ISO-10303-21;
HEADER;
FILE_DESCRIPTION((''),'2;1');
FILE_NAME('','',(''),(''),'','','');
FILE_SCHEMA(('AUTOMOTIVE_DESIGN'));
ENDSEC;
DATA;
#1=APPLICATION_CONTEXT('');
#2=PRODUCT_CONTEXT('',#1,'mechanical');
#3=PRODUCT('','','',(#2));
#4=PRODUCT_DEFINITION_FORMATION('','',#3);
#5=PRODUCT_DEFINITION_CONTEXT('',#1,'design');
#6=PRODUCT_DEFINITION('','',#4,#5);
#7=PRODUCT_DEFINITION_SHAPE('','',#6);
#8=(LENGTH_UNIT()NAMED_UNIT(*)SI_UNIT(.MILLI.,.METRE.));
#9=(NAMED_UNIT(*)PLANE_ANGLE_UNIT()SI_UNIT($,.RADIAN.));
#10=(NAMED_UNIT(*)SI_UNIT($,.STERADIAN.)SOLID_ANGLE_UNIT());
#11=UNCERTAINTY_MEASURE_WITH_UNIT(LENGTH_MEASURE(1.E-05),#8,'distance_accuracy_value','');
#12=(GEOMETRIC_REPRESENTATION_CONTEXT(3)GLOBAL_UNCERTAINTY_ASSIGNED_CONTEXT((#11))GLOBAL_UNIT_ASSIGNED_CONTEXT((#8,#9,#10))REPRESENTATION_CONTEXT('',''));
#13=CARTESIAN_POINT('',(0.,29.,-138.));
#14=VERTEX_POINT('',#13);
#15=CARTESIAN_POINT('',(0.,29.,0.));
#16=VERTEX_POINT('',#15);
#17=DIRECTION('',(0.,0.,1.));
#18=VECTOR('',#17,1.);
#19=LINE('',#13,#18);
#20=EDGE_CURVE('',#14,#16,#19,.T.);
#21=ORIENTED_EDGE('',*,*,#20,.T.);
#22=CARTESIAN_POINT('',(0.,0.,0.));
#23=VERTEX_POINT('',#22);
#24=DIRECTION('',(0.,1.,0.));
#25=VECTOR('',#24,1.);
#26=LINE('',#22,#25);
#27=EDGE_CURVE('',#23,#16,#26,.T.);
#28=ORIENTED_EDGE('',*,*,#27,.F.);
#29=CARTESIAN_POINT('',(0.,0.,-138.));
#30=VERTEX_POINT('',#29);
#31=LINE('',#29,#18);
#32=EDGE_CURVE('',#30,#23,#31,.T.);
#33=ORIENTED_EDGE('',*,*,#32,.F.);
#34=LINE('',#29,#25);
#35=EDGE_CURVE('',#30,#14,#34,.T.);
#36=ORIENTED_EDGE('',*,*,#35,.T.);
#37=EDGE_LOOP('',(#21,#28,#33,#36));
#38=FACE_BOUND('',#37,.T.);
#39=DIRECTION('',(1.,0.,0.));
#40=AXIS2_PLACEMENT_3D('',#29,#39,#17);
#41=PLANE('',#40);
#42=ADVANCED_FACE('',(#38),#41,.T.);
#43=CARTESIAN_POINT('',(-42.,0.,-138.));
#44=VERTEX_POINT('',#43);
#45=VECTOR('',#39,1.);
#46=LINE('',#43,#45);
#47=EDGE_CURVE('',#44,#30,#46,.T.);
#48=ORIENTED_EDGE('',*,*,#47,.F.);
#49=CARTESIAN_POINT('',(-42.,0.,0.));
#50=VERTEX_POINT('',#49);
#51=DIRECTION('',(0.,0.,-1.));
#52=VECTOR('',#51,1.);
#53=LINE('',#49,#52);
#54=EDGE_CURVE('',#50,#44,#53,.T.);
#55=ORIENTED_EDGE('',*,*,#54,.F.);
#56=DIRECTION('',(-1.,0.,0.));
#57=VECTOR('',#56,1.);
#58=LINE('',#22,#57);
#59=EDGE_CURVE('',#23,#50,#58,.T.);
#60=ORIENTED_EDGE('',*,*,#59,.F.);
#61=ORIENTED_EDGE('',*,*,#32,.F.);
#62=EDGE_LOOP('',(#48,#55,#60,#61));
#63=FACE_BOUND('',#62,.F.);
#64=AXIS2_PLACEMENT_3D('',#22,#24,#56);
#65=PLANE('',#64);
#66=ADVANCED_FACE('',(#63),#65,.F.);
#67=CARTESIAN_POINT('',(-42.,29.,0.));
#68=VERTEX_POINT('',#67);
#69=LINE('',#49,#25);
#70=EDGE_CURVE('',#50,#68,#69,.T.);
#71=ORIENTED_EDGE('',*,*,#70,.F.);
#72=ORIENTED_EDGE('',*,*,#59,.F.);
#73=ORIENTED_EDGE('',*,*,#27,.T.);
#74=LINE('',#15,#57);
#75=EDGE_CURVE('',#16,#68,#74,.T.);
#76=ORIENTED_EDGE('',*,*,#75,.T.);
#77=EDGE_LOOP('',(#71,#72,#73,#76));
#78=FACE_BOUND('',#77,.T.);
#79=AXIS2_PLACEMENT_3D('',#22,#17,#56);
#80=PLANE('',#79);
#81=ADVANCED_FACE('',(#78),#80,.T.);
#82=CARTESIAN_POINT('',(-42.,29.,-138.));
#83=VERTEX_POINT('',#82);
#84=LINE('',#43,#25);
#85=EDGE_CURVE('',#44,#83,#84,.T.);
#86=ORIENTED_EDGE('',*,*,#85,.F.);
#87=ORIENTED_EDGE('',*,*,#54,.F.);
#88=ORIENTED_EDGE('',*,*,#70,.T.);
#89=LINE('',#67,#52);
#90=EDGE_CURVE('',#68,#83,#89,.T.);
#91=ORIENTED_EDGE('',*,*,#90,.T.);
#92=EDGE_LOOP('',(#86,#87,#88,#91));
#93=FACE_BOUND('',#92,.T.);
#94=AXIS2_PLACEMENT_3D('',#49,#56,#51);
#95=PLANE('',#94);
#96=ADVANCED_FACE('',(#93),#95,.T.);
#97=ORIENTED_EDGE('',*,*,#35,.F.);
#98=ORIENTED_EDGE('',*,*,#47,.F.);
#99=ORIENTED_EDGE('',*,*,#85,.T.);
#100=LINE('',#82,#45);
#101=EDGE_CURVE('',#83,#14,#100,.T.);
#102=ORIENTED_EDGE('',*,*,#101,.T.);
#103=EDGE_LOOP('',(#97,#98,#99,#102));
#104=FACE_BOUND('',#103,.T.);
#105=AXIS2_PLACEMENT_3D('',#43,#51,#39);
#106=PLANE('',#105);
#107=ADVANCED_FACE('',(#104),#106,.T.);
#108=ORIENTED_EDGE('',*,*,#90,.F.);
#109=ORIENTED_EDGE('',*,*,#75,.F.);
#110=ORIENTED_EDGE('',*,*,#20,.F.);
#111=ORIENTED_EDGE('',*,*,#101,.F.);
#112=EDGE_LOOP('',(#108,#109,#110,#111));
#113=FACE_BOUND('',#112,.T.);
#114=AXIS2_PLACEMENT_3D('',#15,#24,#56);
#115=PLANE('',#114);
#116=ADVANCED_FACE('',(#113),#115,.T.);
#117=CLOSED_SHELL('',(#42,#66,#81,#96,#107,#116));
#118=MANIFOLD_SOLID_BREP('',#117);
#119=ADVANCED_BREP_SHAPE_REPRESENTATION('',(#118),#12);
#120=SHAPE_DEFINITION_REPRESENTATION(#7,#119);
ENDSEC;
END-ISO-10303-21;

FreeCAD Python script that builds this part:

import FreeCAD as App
import Part
import Sketcher
from FreeCAD import Vector
Q = App.Units.Quantity

doc = App.newDocument("Part")
params = doc.addObject("Spreadsheet::Sheet", "Params")
for row, (alias, value) in enumerate([
    ("sketch1_width", "42 mm"),
    ("sketch1_height", "138 mm"),
    ("pad1_length", "29 mm"),
], start=1):
    params.set(f"A{row}", alias)
    params.set(f"B{row}", "=" + value)
    params.setAlias(f"B{row}", alias)

body = doc.addObject("PartDesign::Body", "Body")

sketch1 = doc.addObject("Sketcher::SketchObject", "Sketch")
body.addObject(sketch1)
sketch1.AttachmentSupport = (doc.XZ_Plane, [""])
sketch1.MapMode = "FlatFace"
sketch1.addGeometry([
    Part.LineSegment(Vector(-42, 0, 0), Vector(0, 0, 0)),
    Part.LineSegment(Vector(0, 0, 0), Vector(0, -138, 0)),
    Part.LineSegment(Vector(0, -138, 0), Vector(-42, -138, 0)),
    Part.LineSegment(Vector(-42, -138, 0), Vector(-42, 0, 0)),
], False)
sketch1.addConstraint([
    Sketcher.Constraint("Coincident", 0, 2, 1, 1),
    Sketcher.Constraint("Coincident", 1, 2, 2, 1),
    Sketcher.Constraint("Coincident", 2, 2, 3, 1),
    Sketcher.Constraint("Coincident", 3, 2, 0, 1),
    Sketcher.Constraint("Horizontal", 0),
    Sketcher.Constraint("Vertical", 1),
    Sketcher.Constraint("Horizontal", 2),
    Sketcher.Constraint("Vertical", 3),
    Sketcher.Constraint("Coincident", 0, 2, -1, 1),
    Sketcher.Constraint("DistanceX", 0, 1, 0, 2, Q("42 mm")),
    Sketcher.Constraint("DistanceY", 1, 2, 1, 1, Q("138 mm")),
])
sketch1.setExpression("Constraints[9]", "Params.sketch1_width")
sketch1.setExpression("Constraints[10]", "Params.sketch1_height")
pad1 = doc.addObject("PartDesign::Pad", "Pad")
body.addObject(pad1)
pad1.Profile = sketch1
pad1.setExpression("Length", "Params.pad1_length")
pad1.Reversed = True

doc.recompute()
